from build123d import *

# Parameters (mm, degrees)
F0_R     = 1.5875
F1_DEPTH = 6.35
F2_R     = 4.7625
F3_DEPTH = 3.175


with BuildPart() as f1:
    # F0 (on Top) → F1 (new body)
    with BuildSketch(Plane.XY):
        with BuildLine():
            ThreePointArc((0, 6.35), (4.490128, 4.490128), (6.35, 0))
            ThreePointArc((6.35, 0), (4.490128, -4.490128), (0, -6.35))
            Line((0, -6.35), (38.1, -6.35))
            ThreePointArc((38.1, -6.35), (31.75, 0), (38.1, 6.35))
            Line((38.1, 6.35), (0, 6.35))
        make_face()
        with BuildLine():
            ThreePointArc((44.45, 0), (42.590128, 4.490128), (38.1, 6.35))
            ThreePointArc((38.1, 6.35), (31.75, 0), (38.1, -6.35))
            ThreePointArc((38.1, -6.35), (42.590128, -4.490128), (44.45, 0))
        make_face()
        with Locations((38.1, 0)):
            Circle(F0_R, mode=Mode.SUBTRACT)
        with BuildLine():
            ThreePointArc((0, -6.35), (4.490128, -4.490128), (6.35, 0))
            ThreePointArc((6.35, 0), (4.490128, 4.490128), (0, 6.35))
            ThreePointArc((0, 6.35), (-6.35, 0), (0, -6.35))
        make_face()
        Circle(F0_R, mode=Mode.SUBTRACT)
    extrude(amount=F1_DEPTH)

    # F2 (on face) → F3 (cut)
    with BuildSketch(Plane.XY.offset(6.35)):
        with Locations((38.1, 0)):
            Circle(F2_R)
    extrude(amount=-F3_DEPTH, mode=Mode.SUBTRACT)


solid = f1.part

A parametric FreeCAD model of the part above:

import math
import FreeCAD as App
import Part
import Sketcher
Q = App.Units.Quantity

doc = App.newDocument("Part")
body = doc.addObject("PartDesign::Body", "Body")

sketch1 = body.newObject("Sketcher::SketchObject", "Sketch")
sketch1.AttachmentSupport = (doc.getObject("XY_Plane"), [""])
sketch1.MapMode = "FlatFace"
sketch1.addGeometry([
    Part.LineSegment(App.Vector(38.1, 6.35, 0), App.Vector(0, 6.35, 0)),
    Part.ArcOfCircle(Part.Circle(App.Vector(0, 0, 0), App.Vector(0, 0, 1), 6.35), math.radians(90), math.radians(270)),
    Part.LineSegment(App.Vector(0, -6.35, 0), App.Vector(38.1, -6.35, 0)),
    Part.ArcOfCircle(Part.Circle(App.Vector(38.1, 0, 0), App.Vector(0, 0, 1), 6.35), math.radians(-89.999998), math.radians(-0.000002)),
    Part.ArcOfCircle(Part.Circle(App.Vector(38.1, 0, 0), App.Vector(0, 0, 1), 6.35), math.radians(0.000002), math.radians(89.999998)),
    Part.Circle(App.Vector(0, 0, 0), App.Vector(0, 0, 1), 1.5875),
    Part.Circle(App.Vector(38.1, 0, 0), App.Vector(0, 0, 1), 1.5875),
], False)
sketch1.addConstraint([
    Sketcher.Constraint("Tangent", 0, 2, 1, 1),
    Sketcher.Constraint("Tangent", 1, 2, 2, 1),
    Sketcher.Constraint("Tangent", 2, 2, 3, 1),
    Sketcher.Constraint("Tangent", 3, 2, 4, 1),
    Sketcher.Constraint("Tangent", 4, 2, 0, 1),
    Sketcher.Constraint("Horizontal", 0),
    Sketcher.Constraint("Horizontal", 2),
    Sketcher.Constraint("Coincident", 1, 3, -1, 1),
    Sketcher.Constraint("Coincident", 5, 3, -1, 1),
    Sketcher.Constraint("Coincident", 6, 3, 3, 3),
    Sketcher.Constraint("Equal", 1, 3),
    Sketcher.Constraint("Equal", 5, 6),
    Sketcher.Constraint("PointOnObject", 3, 2, -1),
    Sketcher.Constraint("Radius", 1, Q("0.25 in")),
    Sketcher.Constraint("Diameter", 5, Q("0.125 in")),
    Sketcher.Constraint("DistanceX", 0, 2, 0, 1, Q("1.5 in")),
])
pad1 = body.newObject("PartDesign::Pad", "Pad")
pad1.Profile = sketch1
pad1.Length = Q("0.25 in")

sketch2 = body.newObject("Sketcher::SketchObject", "Sketch001")
sketch2.AttachmentSupport = (doc.getObject("XY_Plane"), [""])
sketch2.MapMode = "FlatFace"
sketch2.AttachmentOffset = App.Placement(App.Vector(0, 0, 0.25 * 25.4), App.Rotation())
sketch2.addGeometry(Part.Circle(App.Vector(38.1, 0, 0), App.Vector(0, 0, 1), 4.7625), False)
sketch2.addConstraint([
    Sketcher.Constraint("PointOnObject", 0, 3, -1),
    Sketcher.Constraint("Diameter", 0, Q("0.375 in")),
    Sketcher.Constraint("DistanceX", -1, 1, 0, 3, Q("1.5 in")),
])
pocket1 = body.newObject("PartDesign::Pocket", "Pocket")
pocket1.Profile = sketch2
pocket1.Length = Q("0.125 in")

doc.recompute()
